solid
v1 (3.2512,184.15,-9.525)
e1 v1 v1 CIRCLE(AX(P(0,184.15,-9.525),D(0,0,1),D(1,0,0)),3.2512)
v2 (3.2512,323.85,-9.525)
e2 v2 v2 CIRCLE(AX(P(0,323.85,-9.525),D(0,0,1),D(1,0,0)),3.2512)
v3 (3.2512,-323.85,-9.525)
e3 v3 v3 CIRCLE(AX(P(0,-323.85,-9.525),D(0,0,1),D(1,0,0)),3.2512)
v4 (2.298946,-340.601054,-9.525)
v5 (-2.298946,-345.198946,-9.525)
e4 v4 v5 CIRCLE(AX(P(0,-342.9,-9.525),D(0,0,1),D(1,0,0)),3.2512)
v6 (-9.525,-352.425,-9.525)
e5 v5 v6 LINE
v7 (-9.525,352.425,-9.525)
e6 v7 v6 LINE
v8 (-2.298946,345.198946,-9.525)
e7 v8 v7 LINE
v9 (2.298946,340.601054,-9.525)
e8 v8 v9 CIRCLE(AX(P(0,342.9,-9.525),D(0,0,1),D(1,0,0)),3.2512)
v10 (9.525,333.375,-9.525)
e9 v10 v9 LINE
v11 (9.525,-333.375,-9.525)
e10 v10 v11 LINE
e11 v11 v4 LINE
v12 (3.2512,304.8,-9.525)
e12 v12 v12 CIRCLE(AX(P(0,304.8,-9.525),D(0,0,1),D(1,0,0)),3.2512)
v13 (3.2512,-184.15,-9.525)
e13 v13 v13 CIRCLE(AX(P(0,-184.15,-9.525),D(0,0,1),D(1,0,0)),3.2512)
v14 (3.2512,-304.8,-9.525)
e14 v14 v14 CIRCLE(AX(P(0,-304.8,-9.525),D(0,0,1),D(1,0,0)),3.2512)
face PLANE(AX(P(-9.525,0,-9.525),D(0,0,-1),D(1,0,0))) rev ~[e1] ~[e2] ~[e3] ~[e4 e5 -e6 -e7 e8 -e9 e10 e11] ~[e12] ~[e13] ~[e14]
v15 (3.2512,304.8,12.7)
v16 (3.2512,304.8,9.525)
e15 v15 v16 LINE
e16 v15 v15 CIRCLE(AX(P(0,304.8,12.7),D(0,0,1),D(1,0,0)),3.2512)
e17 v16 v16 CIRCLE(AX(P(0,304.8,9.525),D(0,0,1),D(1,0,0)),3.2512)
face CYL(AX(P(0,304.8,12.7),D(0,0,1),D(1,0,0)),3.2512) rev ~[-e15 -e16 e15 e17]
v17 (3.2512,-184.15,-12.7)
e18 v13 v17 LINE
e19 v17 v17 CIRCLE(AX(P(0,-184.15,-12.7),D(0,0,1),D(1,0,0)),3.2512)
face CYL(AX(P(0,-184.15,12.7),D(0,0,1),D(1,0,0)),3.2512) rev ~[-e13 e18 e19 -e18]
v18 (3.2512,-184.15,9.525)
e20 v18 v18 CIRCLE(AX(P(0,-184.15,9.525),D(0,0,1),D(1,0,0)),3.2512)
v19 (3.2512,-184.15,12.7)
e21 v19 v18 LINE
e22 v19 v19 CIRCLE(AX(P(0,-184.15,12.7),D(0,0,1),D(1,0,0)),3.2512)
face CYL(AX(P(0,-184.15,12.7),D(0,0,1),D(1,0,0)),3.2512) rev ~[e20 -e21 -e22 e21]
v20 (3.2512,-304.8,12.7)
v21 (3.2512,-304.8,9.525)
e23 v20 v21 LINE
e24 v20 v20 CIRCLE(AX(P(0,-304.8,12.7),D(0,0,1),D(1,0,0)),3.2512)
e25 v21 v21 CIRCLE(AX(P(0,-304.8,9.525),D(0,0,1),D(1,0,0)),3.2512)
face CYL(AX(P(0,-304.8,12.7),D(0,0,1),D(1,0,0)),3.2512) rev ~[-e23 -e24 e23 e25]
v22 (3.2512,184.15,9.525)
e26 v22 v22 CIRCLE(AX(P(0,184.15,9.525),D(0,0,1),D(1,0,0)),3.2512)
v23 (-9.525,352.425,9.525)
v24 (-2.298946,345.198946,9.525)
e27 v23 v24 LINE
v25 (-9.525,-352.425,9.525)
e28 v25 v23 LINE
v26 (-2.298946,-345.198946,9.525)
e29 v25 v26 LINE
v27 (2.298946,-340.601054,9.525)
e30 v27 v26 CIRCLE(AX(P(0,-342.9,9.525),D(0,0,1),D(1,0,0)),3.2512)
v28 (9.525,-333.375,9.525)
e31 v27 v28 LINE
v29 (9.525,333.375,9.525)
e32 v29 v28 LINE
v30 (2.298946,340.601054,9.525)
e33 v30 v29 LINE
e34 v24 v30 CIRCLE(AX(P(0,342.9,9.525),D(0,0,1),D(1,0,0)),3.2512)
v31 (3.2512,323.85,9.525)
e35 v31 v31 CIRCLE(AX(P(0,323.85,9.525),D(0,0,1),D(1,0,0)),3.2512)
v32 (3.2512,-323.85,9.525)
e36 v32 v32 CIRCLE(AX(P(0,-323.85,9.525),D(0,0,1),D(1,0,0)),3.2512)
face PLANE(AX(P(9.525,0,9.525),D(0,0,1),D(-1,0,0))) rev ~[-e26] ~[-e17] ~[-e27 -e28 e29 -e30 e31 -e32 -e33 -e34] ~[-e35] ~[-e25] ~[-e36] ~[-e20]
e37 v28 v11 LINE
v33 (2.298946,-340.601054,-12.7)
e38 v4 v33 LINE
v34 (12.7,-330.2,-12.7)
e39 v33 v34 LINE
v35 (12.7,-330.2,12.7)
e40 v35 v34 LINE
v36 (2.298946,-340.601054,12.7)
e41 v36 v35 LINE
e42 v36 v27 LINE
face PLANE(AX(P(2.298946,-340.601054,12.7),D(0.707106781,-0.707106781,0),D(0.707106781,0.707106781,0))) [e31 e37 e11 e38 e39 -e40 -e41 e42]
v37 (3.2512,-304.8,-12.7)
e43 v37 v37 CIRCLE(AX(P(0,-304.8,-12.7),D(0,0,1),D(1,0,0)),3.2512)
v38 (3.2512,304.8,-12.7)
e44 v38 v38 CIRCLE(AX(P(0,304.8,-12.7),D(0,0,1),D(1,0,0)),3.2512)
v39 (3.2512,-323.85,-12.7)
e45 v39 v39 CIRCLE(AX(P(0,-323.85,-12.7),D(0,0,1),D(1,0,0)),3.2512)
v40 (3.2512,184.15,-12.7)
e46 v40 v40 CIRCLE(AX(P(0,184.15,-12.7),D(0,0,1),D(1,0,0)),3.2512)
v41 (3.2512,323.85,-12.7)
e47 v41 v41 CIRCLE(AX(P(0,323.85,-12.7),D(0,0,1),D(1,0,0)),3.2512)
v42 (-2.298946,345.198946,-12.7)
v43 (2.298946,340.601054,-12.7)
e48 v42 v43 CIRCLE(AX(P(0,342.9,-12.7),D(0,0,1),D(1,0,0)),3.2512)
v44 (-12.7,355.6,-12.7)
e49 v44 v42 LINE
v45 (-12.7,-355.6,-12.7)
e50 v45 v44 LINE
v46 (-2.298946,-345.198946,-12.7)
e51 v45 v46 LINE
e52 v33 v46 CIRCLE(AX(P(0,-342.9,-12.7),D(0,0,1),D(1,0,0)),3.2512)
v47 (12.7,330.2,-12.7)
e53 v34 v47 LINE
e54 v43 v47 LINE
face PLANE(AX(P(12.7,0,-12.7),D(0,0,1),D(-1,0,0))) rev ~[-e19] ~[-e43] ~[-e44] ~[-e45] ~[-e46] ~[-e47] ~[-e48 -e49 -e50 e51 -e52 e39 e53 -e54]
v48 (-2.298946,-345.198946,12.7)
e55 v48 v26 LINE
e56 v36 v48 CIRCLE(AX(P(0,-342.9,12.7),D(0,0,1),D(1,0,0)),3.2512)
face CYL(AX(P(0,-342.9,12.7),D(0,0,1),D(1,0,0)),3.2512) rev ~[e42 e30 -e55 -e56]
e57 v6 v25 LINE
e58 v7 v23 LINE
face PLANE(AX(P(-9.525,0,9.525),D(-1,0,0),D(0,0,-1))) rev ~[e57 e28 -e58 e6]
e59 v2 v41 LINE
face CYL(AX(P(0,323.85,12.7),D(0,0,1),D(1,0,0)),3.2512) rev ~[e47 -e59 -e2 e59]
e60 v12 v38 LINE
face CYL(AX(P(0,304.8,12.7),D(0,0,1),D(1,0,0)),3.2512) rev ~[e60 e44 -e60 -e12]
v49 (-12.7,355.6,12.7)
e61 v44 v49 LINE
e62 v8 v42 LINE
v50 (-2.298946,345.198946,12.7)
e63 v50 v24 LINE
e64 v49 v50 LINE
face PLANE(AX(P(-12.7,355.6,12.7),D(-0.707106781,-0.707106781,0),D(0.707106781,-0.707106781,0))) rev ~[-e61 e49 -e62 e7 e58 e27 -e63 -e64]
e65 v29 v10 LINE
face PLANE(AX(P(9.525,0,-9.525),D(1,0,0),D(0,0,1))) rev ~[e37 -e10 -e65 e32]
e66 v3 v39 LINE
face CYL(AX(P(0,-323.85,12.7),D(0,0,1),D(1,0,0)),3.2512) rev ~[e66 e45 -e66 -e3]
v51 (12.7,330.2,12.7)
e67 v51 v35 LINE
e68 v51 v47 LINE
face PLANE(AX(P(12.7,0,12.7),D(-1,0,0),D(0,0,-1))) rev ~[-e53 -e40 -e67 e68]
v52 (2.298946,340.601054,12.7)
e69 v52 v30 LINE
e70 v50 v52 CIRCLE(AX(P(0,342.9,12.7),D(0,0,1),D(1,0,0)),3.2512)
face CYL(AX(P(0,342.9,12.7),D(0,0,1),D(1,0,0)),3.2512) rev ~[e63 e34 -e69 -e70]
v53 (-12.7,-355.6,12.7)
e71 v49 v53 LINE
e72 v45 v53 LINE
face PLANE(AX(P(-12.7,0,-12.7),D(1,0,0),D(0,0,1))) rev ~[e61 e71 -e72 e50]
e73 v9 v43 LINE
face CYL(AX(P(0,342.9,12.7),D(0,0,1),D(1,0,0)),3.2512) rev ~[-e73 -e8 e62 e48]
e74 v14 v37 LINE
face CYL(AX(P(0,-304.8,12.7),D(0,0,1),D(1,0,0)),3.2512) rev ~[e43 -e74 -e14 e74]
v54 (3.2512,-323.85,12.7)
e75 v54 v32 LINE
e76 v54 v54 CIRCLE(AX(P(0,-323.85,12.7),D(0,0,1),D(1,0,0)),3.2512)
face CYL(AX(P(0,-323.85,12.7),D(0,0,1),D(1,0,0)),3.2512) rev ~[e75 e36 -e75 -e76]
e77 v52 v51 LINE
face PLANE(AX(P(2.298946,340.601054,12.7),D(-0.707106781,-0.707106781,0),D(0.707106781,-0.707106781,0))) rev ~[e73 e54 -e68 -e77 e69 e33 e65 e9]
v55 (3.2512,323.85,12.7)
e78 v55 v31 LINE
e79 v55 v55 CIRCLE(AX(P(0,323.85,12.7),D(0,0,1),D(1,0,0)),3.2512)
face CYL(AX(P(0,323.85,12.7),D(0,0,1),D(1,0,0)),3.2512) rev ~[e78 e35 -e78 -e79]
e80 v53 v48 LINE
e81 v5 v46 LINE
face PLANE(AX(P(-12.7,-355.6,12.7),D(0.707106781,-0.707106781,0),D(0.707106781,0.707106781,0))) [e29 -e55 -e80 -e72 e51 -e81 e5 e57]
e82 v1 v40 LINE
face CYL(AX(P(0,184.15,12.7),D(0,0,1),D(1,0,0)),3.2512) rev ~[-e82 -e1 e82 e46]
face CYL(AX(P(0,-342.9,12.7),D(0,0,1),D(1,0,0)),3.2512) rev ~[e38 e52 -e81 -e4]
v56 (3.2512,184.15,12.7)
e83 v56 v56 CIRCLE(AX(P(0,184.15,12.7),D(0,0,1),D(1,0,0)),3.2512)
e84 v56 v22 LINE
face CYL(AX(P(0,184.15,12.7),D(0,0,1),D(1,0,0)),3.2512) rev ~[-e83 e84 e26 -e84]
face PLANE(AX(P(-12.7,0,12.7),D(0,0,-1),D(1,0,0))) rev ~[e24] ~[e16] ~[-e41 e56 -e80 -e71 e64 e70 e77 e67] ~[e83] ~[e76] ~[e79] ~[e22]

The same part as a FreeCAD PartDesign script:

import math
import FreeCAD as App
import Part
import Sketcher
Q = App.Units.Quantity


def add_polygon(sketch, points):
    """Adds a closed chain of lines whose ends are joined by coincident constraints."""
    first, n = sketch.GeometryCount, len(points)
    for a, b in zip(points, points[1:] + points[:1]):
        sketch.addGeometry(Part.LineSegment(App.Vector(*a, 0), App.Vector(*b, 0)), False)
    for i in range(n):
        sketch.addConstraint(Sketcher.Constraint("Coincident", first + i, 2, first + (i + 1) % n, 1))

doc = App.newDocument("Part")
body = doc.addObject("PartDesign::Body", "Body")

# Sketch on XZ plane
sketch1 = doc.addObject("Sketcher::SketchObject", "Sketch")
body.addObject(sketch1)
sketch1.AttachmentSupport = (doc.XZ_Plane, [""])
sketch1.MapMode = "FlatFace"
add_polygon(sketch1, [(13, 13), (13, -13), (-13, -13), (-13, 13)])  # lines 0-3
add_polygon(sketch1, [(10, 10), (-10, 10), (-10, -10), (10, -10)])  # lines 4-7
sketch1.addConstraint([
    Sketcher.Constraint("Vertical", 0),
    Sketcher.Constraint("Horizontal", 1),
    Sketcher.Constraint("Vertical", 2),
    Sketcher.Constraint("Horizontal", 3),
    Sketcher.Constraint("Horizontal", 4),
    Sketcher.Constraint("Vertical", 5),
    Sketcher.Constraint("Horizontal", 6),
    Sketcher.Constraint("Vertical", 7),
    Sketcher.Constraint("Symmetric", 0, 2, 2, 2, -1, 1),
    Sketcher.Constraint("Symmetric", 4, 2, 6, 2, -1, 1),
    Sketcher.Constraint("Equal", 3, 0),
    Sketcher.Constraint("Equal", 6, 5),
    Sketcher.Constraint("DistanceX", 1, 2, 1, 1, Q("1 in")),
    Sketcher.Constraint("DistanceX", 2, 2, 4, 2, Q("0.125 in")),
])
pad1 = doc.addObject("PartDesign::Pad", "Pad")
body.addObject(pad1)
pad1.Profile = sketch1
pad1.Length = Q("28 in")
pad1.Midplane = True

# Sketch on XY plane
sketch2 = doc.addObject("Sketcher::SketchObject", "Sketch001")
body.addObject(sketch2)
sketch2.AttachmentSupport = (doc.XY_Plane, [""])
sketch2.MapMode = "FlatFace"
sketch2.AttachmentOffset = App.Placement(App.Vector(0, 0, 0.5 * 25.4), App.Rotation())
sketch2.addGeometry([
    Part.LineSegment(App.Vector(12.7, 355.6, 0), App.Vector(-12.7, 355.6, 0)),  # 0
    Part.LineSegment(App.Vector(-12.7, 355.6, 0), App.Vector(-2.3, 345.2, 0)),  # 1
    Part.ArcOfCircle(Part.Circle(App.Vector(0, 342.9, 0), App.Vector(0, 0, 1), 3.3), math.radians(135), math.radians(315)),  # 2
    Part.LineSegment(App.Vector(2.3, 340.6, 0), App.Vector(12.7, 330.2, 0)),  # 3
    Part.LineSegment(App.Vector(12.7, 330.2, 0), App.Vector(12.7, 355.6, 0)),  # 4
    Part.LineSegment(App.Vector(-2.3, -345.2, 0), App.Vector(-12.7, -355.6, 0)),  # 5
    Part.LineSegment(App.Vector(-12.7, -355.6, 0), App.Vector(12.7, -355.6, 0)),  # 6
    Part.LineSegment(App.Vector(12.7, -355.6, 0), App.Vector(12.7, -330.2, 0)),  # 7
    Part.LineSegment(App.Vector(12.7, -330.2, 0), App.Vector(2.3, -340.6, 0)),  # 8
    Part.ArcOfCircle(Part.Circle(App.Vector(0, -342.9, 0), App.Vector(0, 0, 1), 3.3), math.radians(45), math.radians(225)),  # 9
    Part.Circle(App.Vector(0, 323.9, 0), App.Vector(0, 0, 1), 3.3),  # 10
    Part.Circle(App.Vector(0, 304.8, 0), App.Vector(0, 0, 1), 3.3),  # 11
    Part.Circle(App.Vector(0, -323.9, 0), App.Vector(0, 0, 1), 3.3),  # 12
    Part.Circle(App.Vector(0, -304.8, 0), App.Vector(0, 0, 1), 3.3),  # 13
], False)
sketch2.addConstraint([
    Sketcher.Constraint("Coincident", 0, 2, 1, 1),
    Sketcher.Constraint("Coincident", 1, 2, 2, 1),
    Sketcher.Constraint("Coincident", 2, 2, 3, 1),
    Sketcher.Constraint("Coincident", 3, 2, 4, 1),
    Sketcher.Constraint("Coincident", 4, 2, 0, 1),
    Sketcher.Constraint("Coincident", 5, 2, 6, 1),
    Sketcher.Constraint("Coincident", 6, 2, 7, 1),
    Sketcher.Constraint("Coincident", 7, 2, 8, 1),
    Sketcher.Constraint("Coincident", 8, 2, 9, 1),
    Sketcher.Constraint("Coincident", 9, 2, 5, 1),
    Sketcher.Constraint("Horizontal", 0),
    Sketcher.Constraint("Vertical", 4),
    Sketcher.Constraint("Horizontal", 6),
    Sketcher.Constraint("Vertical", 7),
    Sketcher.Constraint("Equal", 2, 9),
    Sketcher.Constraint("Equal", 9, 10),
    Sketcher.Constraint("Equal", 10, 11),
    Sketcher.Constraint("Equal", 11, 12),
    Sketcher.Constraint("Equal", 12, 13),
    Sketcher.Constraint("Symmetric", 2, 3, 9, 3, -1, 1),
    Sketcher.Constraint("Symmetric", 10, 3, 12, 3, -1, 1),
    Sketcher.Constraint("Symmetric", 11, 3, 13, 3, -1, 1),
    Sketcher.Constraint("Symmetric", 4, 2, 5, 2, -1, 1),
    Sketcher.Constraint("Symmetric", 3, 2, 7, 2, -1),
    Sketcher.Constraint("Symmetric", 2, 2, 8, 2, -1),
    Sketcher.Constraint("PointOnObject", 10, 3, -2),
    Sketcher.Constraint("PointOnObject", 11, 3, -2),
    Sketcher.Constraint("Parallel", 1, 3),
    Sketcher.Constraint("Perpendicular", 3, 5),
    Sketcher.Constraint("Parallel", 5, 8),
    Sketcher.Constraint("Vertical", 0, 2, 5, 2),
    Sketcher.Constraint("Equal", 6, 4),
    Sketcher.Constraint("Equal", 1, 3),
    Sketcher.Constraint("DistanceX", 0, 2, 0, 1, Q("1 in")),
    Sketcher.Constraint("Diameter", 10, Q("0.256 in")),
    Sketcher.Constraint("DistanceY", 11, 3, 3, 2, Q("1 in")),
    Sketcher.Constraint("DistanceY", 10, 3, 2, 3, Q("0.75 in")),
    Sketcher.Constraint("DistanceY", -1, 1, 11, 3, Q("12 in")),
])
pocket1 = doc.addObject("PartDesign::Pocket", "Pocket")
body.addObject(pocket1)
pocket1.Profile = sketch2
pocket1.Length = Q("28 in")

# Sketch on XY plane
sketch3 = doc.addObject("Sketcher::SketchObject", "Sketch002")
body.addObject(sketch3)
sketch3.AttachmentSupport = (doc.XY_Plane, [""])
sketch3.MapMode = "FlatFace"
sketch3.AttachmentOffset = App.Placement(App.Vector(0, 0, 0.5 * 25.4), App.Rotation())
sketch3.addGeometry([
    Part.Circle(App.Vector(0, -184.2, 0), App.Vector(0, 0, 1), 3.3),
    Part.Circle(App.Vector(0, 184.2, 0), App.Vector(0, 0, 1), 3.3),
], False)
sketch3.addConstraint([
    Sketcher.Constraint("Equal", 0, 1),
    Sketcher.Constraint("Symmetric", 0, 3, 1, 3, -1, 1),
    Sketcher.Constraint("PointOnObject", 0, 3, -2),
    Sketcher.Constraint("Diameter", 0, Q("0.256 in")),
    Sketcher.Constraint("DistanceY", 0, 3, -1, 1, Q("7.25 in")),
])
pocket2 = doc.addObject("PartDesign::Pocket", "Pocket001")
body.addObject(pocket2)
pocket2.Profile = sketch3
pocket2.Length = Q("1 in")

doc.recompute()
